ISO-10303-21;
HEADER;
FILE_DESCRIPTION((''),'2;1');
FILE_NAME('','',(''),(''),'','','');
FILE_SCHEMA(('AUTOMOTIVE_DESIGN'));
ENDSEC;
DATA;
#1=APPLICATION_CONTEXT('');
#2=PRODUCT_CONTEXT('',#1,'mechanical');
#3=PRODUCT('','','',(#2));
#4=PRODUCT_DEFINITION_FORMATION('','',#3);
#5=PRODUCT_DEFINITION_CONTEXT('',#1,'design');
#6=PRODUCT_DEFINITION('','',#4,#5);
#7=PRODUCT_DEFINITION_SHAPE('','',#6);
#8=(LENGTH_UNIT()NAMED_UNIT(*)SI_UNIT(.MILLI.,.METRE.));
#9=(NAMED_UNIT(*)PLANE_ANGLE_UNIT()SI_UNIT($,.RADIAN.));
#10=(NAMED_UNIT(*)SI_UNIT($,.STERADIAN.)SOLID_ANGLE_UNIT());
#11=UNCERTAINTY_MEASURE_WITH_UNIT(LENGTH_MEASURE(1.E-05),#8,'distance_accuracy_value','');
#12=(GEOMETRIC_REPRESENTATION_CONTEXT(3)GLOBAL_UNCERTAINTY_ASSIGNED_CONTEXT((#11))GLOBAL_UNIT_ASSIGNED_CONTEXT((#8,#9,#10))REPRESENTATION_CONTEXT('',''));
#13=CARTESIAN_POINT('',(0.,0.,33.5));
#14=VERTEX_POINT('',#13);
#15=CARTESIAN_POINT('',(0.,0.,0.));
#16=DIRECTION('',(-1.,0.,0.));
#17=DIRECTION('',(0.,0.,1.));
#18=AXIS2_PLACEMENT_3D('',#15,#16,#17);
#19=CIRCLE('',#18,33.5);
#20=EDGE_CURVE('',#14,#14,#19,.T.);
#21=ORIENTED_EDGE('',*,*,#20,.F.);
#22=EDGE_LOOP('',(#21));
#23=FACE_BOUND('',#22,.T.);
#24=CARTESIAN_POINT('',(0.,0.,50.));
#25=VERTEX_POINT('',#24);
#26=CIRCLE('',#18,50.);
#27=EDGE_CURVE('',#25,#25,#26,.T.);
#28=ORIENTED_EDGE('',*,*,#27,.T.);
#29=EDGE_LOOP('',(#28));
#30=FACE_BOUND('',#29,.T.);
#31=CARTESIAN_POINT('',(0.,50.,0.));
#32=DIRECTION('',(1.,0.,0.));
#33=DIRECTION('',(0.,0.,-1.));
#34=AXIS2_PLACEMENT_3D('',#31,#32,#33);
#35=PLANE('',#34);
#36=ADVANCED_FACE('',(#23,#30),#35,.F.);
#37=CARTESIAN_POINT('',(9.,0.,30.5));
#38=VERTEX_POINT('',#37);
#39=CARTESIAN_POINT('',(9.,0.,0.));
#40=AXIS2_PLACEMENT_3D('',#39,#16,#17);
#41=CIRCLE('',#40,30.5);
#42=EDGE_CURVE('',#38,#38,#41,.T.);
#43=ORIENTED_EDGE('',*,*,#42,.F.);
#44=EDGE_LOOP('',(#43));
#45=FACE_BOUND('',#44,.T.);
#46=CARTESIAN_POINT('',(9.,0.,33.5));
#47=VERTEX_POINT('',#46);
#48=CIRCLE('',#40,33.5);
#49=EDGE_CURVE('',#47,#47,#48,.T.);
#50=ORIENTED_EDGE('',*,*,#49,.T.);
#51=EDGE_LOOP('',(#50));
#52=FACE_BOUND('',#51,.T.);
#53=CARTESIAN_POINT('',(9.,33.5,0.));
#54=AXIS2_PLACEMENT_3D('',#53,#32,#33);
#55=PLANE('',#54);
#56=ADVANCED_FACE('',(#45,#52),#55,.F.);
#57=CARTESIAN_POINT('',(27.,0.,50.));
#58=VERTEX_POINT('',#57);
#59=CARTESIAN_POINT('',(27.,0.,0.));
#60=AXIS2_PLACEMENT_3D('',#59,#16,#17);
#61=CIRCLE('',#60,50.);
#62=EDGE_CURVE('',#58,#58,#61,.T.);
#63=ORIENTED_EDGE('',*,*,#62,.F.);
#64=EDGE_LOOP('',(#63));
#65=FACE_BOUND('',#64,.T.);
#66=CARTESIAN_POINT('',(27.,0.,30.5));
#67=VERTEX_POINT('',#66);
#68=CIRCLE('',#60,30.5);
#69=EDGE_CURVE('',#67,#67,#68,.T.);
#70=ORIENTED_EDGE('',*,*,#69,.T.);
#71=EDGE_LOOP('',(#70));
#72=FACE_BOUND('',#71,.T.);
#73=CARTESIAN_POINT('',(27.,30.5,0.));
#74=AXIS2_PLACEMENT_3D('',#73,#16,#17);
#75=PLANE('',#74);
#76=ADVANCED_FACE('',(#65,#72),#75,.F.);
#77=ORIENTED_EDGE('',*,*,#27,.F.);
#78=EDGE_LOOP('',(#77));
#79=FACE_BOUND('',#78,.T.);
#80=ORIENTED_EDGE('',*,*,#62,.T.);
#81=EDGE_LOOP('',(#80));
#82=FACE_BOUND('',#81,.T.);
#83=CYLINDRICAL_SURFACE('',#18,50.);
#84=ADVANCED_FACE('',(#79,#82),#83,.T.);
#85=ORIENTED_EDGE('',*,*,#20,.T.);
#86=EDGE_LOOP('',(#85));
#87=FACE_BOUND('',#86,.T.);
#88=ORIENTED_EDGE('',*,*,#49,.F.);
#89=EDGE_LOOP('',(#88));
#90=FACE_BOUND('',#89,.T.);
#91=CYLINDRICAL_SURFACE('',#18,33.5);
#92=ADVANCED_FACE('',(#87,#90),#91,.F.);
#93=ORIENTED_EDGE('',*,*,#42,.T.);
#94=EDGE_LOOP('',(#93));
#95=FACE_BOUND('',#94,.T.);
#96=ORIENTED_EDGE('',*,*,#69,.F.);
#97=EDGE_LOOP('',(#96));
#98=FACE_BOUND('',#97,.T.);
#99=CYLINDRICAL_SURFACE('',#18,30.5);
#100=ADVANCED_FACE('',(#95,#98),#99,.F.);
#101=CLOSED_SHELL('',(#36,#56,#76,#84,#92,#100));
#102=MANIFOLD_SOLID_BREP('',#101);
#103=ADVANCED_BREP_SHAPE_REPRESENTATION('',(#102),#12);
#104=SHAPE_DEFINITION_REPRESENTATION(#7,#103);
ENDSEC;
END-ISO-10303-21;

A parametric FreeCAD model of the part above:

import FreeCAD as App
import Part
import Sketcher

V = App.Vector
Q = App.Units.Quantity

doc = App.newDocument("Part")
params = doc.addObject("Spreadsheet::Sheet", "Params")
for row, (alias, value) in enumerate([
    ("sketch1_width", "9 mm"),
    ("sketch1_width2", "18 mm"),
    ("sketch1_height", "3 mm"),
    ("sketch1_height2", "19.5 mm"),
    ("revolution_angle", "360 deg"),
], start=1):
    params.set(f"A{row}", alias)
    params.set(f"B{row}", "=" + value)
    params.setAlias(f"B{row}", alias)

body = doc.addObject("PartDesign::Body", "Body")

# Sketch on XY plane
sketch1 = body.newObject("Sketcher::SketchObject", "Sketch")
sketch1.AttachmentSupport = (doc.getObject("XY_Plane"), [""])
sketch1.MapMode = "FlatFace"
sketch1.addGeometry([
    Part.LineSegment(V(0, 33.5, 0), V(9, 33.5, 0)),  # 0
    Part.LineSegment(V(9, 33.5, 0), V(9, 30.5, 0)),  # 1
    Part.LineSegment(V(9, 30.5, 0), V(27, 30.5, 0)),  # 2
    Part.LineSegment(V(27, 30.5, 0), V(27, 50, 0)),  # 3
    Part.LineSegment(V(27, 50, 0), V(0, 50, 0)),  # 4
    Part.LineSegment(V(0, 50, 0), V(0, 33.5, 0)),  # 5
], False)
sketch1.addConstraint([
    Sketcher.Constraint("Coincident", 0, 2, 1, 1),
    Sketcher.Constraint("Coincident", 1, 2, 2, 1),
    Sketcher.Constraint("Coincident", 2, 2, 3, 1),
    Sketcher.Constraint("Coincident", 3, 2, 4, 1),
    Sketcher.Constraint("Coincident", 4, 2, 5, 1),
    Sketcher.Constraint("Coincident", 5, 2, 0, 1),
    Sketcher.Constraint("Horizontal", 0),
    Sketcher.Constraint("Vertical", 1),
    Sketcher.Constraint("Horizontal", 2),
    Sketcher.Constraint("Vertical", 3),
    Sketcher.Constraint("Horizontal", 4),
    Sketcher.Constraint("Vertical", 5),
    Sketcher.Constraint("PointOnObject", 4, 2, -2),
    Sketcher.Constraint("DistanceX", 0, 1, 0, 2, Q("9 mm")),
    Sketcher.Constraint("DistanceX", 2, 1, 2, 2, Q("18 mm")),
    Sketcher.Constraint("DistanceY", 1, 2, 1, 1, Q("3 mm")),
    Sketcher.Constraint("DistanceY", 3, 1, 3, 2, Q("19.5 mm")),
    Sketcher.Constraint("DistanceY", -1, 1, 3, 2, Q("50 mm")),
])
sketch1.setExpression("Constraints[13]", "Params.sketch1_width")
sketch1.setExpression("Constraints[14]", "Params.sketch1_width2")
sketch1.setExpression("Constraints[15]", "Params.sketch1_height")
sketch1.setExpression("Constraints[16]", "Params.sketch1_height2")
revolution = body.newObject("PartDesign::Revolution", "Revolution")
revolution.Profile = sketch1
revolution.ReferenceAxis = (sketch1, ["H_Axis"])
revolution.setExpression("Angle", "Params.revolution_angle")

doc.recompute()
